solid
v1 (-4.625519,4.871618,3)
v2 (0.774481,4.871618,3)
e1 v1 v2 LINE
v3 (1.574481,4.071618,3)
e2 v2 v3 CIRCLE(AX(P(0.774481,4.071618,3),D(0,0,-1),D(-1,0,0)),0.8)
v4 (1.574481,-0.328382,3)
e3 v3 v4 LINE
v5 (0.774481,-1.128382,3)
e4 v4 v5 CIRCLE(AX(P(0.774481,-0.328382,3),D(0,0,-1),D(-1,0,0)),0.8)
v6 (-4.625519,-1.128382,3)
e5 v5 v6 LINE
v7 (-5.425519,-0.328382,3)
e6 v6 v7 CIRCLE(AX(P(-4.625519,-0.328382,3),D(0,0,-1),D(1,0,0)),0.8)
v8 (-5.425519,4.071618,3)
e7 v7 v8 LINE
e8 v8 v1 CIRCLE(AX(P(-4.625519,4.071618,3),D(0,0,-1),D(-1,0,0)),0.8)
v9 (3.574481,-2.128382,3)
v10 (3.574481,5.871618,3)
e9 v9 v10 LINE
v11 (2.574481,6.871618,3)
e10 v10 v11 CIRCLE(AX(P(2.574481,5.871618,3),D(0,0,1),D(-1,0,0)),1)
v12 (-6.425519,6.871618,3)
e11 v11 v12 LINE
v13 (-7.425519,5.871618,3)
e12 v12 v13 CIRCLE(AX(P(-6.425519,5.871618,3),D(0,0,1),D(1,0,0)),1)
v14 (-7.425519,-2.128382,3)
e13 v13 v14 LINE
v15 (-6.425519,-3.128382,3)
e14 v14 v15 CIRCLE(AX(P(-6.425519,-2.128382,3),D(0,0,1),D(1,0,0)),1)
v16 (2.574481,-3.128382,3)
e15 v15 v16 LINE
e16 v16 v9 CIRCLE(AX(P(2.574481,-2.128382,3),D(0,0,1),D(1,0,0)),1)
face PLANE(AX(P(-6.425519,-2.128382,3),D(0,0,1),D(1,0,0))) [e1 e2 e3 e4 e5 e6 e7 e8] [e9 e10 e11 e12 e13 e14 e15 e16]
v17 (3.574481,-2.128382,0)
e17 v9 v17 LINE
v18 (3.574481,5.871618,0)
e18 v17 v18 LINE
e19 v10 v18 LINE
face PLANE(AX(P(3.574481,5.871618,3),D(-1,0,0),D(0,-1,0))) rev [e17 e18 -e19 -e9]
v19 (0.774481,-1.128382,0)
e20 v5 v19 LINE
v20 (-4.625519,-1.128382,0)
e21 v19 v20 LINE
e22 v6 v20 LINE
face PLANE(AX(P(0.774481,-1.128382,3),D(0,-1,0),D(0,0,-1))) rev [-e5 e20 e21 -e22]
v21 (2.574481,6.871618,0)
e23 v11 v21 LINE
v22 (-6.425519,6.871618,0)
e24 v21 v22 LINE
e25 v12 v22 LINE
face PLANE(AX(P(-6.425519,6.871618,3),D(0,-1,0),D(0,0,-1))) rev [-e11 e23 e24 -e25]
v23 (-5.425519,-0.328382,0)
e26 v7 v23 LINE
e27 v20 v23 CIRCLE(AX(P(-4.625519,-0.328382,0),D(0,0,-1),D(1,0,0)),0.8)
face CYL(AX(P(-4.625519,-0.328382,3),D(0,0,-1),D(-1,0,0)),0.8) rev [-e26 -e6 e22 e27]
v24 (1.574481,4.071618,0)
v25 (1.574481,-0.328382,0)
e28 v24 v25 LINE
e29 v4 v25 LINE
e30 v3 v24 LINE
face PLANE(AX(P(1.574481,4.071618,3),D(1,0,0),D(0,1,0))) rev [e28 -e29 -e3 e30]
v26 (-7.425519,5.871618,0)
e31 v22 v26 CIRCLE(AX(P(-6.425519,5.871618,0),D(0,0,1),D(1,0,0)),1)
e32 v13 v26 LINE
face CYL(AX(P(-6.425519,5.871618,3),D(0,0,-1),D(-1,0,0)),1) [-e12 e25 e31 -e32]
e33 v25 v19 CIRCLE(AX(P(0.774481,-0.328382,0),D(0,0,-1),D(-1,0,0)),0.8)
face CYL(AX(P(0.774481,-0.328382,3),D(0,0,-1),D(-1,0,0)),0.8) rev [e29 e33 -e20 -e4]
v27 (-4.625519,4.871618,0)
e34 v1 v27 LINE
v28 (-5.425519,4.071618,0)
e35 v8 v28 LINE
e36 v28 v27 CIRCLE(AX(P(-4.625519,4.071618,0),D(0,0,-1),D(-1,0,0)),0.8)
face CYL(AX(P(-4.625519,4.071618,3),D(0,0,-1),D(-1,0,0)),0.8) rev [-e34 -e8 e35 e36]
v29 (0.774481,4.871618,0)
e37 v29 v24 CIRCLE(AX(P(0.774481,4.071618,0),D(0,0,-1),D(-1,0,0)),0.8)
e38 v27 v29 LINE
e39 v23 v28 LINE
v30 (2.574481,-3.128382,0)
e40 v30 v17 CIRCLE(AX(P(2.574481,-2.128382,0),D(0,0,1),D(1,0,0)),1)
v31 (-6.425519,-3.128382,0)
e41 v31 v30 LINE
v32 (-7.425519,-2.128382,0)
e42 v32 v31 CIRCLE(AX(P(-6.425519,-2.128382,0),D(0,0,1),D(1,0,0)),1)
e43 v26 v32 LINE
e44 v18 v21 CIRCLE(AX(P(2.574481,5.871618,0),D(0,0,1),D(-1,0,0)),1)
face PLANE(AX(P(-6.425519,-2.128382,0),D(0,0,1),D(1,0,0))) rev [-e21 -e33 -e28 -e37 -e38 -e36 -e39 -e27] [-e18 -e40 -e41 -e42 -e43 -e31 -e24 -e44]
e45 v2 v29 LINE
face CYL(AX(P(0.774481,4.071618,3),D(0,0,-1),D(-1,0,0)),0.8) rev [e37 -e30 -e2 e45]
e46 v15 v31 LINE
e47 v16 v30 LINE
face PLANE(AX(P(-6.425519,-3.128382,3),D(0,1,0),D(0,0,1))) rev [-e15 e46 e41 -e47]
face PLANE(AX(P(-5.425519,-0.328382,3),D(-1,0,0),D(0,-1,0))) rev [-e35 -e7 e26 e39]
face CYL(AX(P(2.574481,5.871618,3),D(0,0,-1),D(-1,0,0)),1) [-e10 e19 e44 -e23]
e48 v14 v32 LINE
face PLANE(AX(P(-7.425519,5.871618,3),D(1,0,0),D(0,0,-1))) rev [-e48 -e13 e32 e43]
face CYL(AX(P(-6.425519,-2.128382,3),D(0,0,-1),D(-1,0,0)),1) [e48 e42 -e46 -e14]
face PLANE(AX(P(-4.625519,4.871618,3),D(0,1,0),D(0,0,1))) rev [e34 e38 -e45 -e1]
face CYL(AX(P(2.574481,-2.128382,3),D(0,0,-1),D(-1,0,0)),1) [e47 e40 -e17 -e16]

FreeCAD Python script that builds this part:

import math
import FreeCAD as App
import Part
import Sketcher
Q = App.Units.Quantity

doc = App.newDocument("Part")
params = doc.addObject("Spreadsheet::Sheet", "Params")
for row, (alias, value) in enumerate([
    ("sketch1_radius", "1 mm"),
    ("sketch1_width", "9 mm"),
    ("sketch1_height", "8 mm"),
    ("pad1_length", "3 mm"),
    ("sketch2_radius", "0.8 mm"),
    ("sketch2_width", "5.4 mm"),
    ("sketch2_height", "4.4 mm"),
    ("pocket1_length", "3 mm"),
], start=1):
    params.set(f"A{row}", alias)
    params.set(f"B{row}", "=" + value)
    params.setAlias(f"B{row}", alias)

body = doc.addObject("PartDesign::Body", "Body")

# Sketch on XY plane
sketch1 = doc.addObject("Sketcher::SketchObject", "Sketch")
body.addObject(sketch1)
sketch1.AttachmentSupport = (doc.XY_Plane, [""])
sketch1.MapMode = "FlatFace"
sketch1.addGeometry([
    Part.LineSegment(App.Vector(2.6, 6.9, 0), App.Vector(-6.4, 6.9, 0)),  # 0
    Part.ArcOfCircle(Part.Circle(App.Vector(-6.4, 5.9, 0), App.Vector(0, 0, 1), 1), math.radians(90), math.radians(180)),  # 1
    Part.LineSegment(App.Vector(-7.4, 5.9, 0), App.Vector(-7.4, -2.1, 0)),  # 2
    Part.ArcOfCircle(Part.Circle(App.Vector(-6.4, -2.1, 0), App.Vector(0, 0, 1), 1), math.radians(-180), math.radians(-90)),  # 3
    Part.LineSegment(App.Vector(-6.4, -3.1, 0), App.Vector(2.6, -3.1, 0)),  # 4
    Part.ArcOfCircle(Part.Circle(App.Vector(2.6, -2.1, 0), App.Vector(0, 0, 1), 1), math.radians(-90), math.radians(0)),  # 5
    Part.LineSegment(App.Vector(3.6, -2.1, 0), App.Vector(3.6, 5.9, 0)),  # 6
    Part.ArcOfCircle(Part.Circle(App.Vector(2.6, 5.9, 0), App.Vector(0, 0, 1), 1), math.radians(0), math.radians(90)),  # 7
], False)
sketch1.addConstraint([
    Sketcher.Constraint("Tangent", 0, 2, 1, 1),
    Sketcher.Constraint("Tangent", 1, 2, 2, 1),
    Sketcher.Constraint("Tangent", 2, 2, 3, 1),
    Sketcher.Constraint("Tangent", 3, 2, 4, 1),
    Sketcher.Constraint("Tangent", 4, 2, 5, 1),
    Sketcher.Constraint("Tangent", 5, 2, 6, 1),
    Sketcher.Constraint("Tangent", 6, 2, 7, 1),
    Sketcher.Constraint("Tangent", 7, 2, 0, 1),
    Sketcher.Constraint("Horizontal", 0),
    Sketcher.Constraint("Vertical", 2),
    Sketcher.Constraint("Horizontal", 4),
    Sketcher.Constraint("Vertical", 6),
    Sketcher.Constraint("Equal", 1, 3),
    Sketcher.Constraint("Equal", 3, 5),
    Sketcher.Constraint("Equal", 5, 7),
    Sketcher.Constraint("Radius", 1, Q("1 mm")),
    Sketcher.Constraint("DistanceX", 0, 2, 0, 1, Q("9 mm")),
    Sketcher.Constraint("DistanceY", 2, 2, 2, 1, Q("8 mm")),
    Sketcher.Constraint("DistanceX", 1, 3, -1, 1, Q("6.425519 mm")),
    Sketcher.Constraint("DistanceY", -1, 1, 1, 3, Q("5.871618 mm")),
])
sketch1.setExpression("Constraints[15]", "Params.sketch1_radius")
sketch1.setExpression("Constraints[16]", "Params.sketch1_width")
sketch1.setExpression("Constraints[17]", "Params.sketch1_height")
pad1 = doc.addObject("PartDesign::Pad", "Pad")
body.addObject(pad1)
pad1.Profile = sketch1
pad1.setExpression("Length", "Params.pad1_length")

# Sketch on XY plane
sketch2 = doc.addObject("Sketcher::SketchObject", "Sketch001")
body.addObject(sketch2)
sketch2.AttachmentSupport = (doc.XY_Plane, [""])
sketch2.MapMode = "FlatFace"
sketch2.addGeometry([
    Part.LineSegment(App.Vector(-5.4, -0.3, 0), App.Vector(-5.4, 4.1, 0)),  # 0
    Part.ArcOfCircle(Part.Circle(App.Vector(-4.6, 4.1, 0), App.Vector(0, 0, 1), 0.8), math.radians(90), math.radians(180)),  # 1
    Part.LineSegment(App.Vector(-4.6, 4.9, 0), App.Vector(0.8, 4.9, 0)),  # 2
    Part.ArcOfCircle(Part.Circle(App.Vector(0.8, 4.1, 0), App.Vector(0, 0, 1), 0.8), math.radians(0), math.radians(90)),  # 3
    Part.LineSegment(App.Vector(1.6, 4.1, 0), App.Vector(1.6, -0.3, 0)),  # 4
    Part.ArcOfCircle(Part.Circle(App.Vector(0.8, -0.3, 0), App.Vector(0, 0, 1), 0.8), math.radians(-90), math.radians(0)),  # 5
    Part.LineSegment(App.Vector(0.8, -1.1, 0), App.Vector(-4.6, -1.1, 0)),  # 6
    Part.ArcOfCircle(Part.Circle(App.Vector(-4.6, -0.3, 0), App.Vector(0, 0, 1), 0.8), math.radians(180), math.radians(270)),  # 7
], False)
sketch2.addConstraint([
    Sketcher.Constraint("Tangent", 0, 2, 1, 2),
    Sketcher.Constraint("Tangent", 1, 1, 2, 1),
    Sketcher.Constraint("Tangent", 2, 2, 3, 2),
    Sketcher.Constraint("Tangent", 3, 1, 4, 1),
    Sketcher.Constraint("Tangent", 4, 2, 5, 2),
    Sketcher.Constraint("Tangent", 5, 1, 6, 1),
    Sketcher.Constraint("Tangent", 6, 2, 7, 2),
    Sketcher.Constraint("Tangent", 7, 1, 0, 1),
    Sketcher.Constraint("Vertical", 0),
    Sketcher.Constraint("Horizontal", 2),
    Sketcher.Constraint("Vertical", 4),
    Sketcher.Constraint("Horizontal", 6),
    Sketcher.Constraint("Equal", 1, 3),
    Sketcher.Constraint("Equal", 3, 5),
    Sketcher.Constraint("Equal", 5, 7),
    Sketcher.Constraint("Radius", 1, Q("0.8 mm")),
    Sketcher.Constraint("DistanceX", 2, 1, 2, 2, Q("5.4 mm")),
    Sketcher.Constraint("DistanceY", 0, 1, 0, 2, Q("4.4 mm")),
    Sketcher.Constraint("DistanceX", 1, 3, -1, 1, Q("4.625519 mm")),
    Sketcher.Constraint("DistanceY", -1, 1, 1, 3, Q("4.071618 mm")),
])
sketch2.setExpression("Constraints[15]", "Params.sketch2_radius")
sketch2.setExpression("Constraints[16]", "Params.sketch2_width")
sketch2.setExpression("Constraints[17]", "Params.sketch2_height")
pocket1 = doc.addObject("PartDesign::Pocket", "Pocket")
body.addObject(pocket1)
pocket1.Profile = sketch2
pocket1.setExpression("Length", "Params.pocket1_length")
pocket1.Reversed = True

doc.recompute()
